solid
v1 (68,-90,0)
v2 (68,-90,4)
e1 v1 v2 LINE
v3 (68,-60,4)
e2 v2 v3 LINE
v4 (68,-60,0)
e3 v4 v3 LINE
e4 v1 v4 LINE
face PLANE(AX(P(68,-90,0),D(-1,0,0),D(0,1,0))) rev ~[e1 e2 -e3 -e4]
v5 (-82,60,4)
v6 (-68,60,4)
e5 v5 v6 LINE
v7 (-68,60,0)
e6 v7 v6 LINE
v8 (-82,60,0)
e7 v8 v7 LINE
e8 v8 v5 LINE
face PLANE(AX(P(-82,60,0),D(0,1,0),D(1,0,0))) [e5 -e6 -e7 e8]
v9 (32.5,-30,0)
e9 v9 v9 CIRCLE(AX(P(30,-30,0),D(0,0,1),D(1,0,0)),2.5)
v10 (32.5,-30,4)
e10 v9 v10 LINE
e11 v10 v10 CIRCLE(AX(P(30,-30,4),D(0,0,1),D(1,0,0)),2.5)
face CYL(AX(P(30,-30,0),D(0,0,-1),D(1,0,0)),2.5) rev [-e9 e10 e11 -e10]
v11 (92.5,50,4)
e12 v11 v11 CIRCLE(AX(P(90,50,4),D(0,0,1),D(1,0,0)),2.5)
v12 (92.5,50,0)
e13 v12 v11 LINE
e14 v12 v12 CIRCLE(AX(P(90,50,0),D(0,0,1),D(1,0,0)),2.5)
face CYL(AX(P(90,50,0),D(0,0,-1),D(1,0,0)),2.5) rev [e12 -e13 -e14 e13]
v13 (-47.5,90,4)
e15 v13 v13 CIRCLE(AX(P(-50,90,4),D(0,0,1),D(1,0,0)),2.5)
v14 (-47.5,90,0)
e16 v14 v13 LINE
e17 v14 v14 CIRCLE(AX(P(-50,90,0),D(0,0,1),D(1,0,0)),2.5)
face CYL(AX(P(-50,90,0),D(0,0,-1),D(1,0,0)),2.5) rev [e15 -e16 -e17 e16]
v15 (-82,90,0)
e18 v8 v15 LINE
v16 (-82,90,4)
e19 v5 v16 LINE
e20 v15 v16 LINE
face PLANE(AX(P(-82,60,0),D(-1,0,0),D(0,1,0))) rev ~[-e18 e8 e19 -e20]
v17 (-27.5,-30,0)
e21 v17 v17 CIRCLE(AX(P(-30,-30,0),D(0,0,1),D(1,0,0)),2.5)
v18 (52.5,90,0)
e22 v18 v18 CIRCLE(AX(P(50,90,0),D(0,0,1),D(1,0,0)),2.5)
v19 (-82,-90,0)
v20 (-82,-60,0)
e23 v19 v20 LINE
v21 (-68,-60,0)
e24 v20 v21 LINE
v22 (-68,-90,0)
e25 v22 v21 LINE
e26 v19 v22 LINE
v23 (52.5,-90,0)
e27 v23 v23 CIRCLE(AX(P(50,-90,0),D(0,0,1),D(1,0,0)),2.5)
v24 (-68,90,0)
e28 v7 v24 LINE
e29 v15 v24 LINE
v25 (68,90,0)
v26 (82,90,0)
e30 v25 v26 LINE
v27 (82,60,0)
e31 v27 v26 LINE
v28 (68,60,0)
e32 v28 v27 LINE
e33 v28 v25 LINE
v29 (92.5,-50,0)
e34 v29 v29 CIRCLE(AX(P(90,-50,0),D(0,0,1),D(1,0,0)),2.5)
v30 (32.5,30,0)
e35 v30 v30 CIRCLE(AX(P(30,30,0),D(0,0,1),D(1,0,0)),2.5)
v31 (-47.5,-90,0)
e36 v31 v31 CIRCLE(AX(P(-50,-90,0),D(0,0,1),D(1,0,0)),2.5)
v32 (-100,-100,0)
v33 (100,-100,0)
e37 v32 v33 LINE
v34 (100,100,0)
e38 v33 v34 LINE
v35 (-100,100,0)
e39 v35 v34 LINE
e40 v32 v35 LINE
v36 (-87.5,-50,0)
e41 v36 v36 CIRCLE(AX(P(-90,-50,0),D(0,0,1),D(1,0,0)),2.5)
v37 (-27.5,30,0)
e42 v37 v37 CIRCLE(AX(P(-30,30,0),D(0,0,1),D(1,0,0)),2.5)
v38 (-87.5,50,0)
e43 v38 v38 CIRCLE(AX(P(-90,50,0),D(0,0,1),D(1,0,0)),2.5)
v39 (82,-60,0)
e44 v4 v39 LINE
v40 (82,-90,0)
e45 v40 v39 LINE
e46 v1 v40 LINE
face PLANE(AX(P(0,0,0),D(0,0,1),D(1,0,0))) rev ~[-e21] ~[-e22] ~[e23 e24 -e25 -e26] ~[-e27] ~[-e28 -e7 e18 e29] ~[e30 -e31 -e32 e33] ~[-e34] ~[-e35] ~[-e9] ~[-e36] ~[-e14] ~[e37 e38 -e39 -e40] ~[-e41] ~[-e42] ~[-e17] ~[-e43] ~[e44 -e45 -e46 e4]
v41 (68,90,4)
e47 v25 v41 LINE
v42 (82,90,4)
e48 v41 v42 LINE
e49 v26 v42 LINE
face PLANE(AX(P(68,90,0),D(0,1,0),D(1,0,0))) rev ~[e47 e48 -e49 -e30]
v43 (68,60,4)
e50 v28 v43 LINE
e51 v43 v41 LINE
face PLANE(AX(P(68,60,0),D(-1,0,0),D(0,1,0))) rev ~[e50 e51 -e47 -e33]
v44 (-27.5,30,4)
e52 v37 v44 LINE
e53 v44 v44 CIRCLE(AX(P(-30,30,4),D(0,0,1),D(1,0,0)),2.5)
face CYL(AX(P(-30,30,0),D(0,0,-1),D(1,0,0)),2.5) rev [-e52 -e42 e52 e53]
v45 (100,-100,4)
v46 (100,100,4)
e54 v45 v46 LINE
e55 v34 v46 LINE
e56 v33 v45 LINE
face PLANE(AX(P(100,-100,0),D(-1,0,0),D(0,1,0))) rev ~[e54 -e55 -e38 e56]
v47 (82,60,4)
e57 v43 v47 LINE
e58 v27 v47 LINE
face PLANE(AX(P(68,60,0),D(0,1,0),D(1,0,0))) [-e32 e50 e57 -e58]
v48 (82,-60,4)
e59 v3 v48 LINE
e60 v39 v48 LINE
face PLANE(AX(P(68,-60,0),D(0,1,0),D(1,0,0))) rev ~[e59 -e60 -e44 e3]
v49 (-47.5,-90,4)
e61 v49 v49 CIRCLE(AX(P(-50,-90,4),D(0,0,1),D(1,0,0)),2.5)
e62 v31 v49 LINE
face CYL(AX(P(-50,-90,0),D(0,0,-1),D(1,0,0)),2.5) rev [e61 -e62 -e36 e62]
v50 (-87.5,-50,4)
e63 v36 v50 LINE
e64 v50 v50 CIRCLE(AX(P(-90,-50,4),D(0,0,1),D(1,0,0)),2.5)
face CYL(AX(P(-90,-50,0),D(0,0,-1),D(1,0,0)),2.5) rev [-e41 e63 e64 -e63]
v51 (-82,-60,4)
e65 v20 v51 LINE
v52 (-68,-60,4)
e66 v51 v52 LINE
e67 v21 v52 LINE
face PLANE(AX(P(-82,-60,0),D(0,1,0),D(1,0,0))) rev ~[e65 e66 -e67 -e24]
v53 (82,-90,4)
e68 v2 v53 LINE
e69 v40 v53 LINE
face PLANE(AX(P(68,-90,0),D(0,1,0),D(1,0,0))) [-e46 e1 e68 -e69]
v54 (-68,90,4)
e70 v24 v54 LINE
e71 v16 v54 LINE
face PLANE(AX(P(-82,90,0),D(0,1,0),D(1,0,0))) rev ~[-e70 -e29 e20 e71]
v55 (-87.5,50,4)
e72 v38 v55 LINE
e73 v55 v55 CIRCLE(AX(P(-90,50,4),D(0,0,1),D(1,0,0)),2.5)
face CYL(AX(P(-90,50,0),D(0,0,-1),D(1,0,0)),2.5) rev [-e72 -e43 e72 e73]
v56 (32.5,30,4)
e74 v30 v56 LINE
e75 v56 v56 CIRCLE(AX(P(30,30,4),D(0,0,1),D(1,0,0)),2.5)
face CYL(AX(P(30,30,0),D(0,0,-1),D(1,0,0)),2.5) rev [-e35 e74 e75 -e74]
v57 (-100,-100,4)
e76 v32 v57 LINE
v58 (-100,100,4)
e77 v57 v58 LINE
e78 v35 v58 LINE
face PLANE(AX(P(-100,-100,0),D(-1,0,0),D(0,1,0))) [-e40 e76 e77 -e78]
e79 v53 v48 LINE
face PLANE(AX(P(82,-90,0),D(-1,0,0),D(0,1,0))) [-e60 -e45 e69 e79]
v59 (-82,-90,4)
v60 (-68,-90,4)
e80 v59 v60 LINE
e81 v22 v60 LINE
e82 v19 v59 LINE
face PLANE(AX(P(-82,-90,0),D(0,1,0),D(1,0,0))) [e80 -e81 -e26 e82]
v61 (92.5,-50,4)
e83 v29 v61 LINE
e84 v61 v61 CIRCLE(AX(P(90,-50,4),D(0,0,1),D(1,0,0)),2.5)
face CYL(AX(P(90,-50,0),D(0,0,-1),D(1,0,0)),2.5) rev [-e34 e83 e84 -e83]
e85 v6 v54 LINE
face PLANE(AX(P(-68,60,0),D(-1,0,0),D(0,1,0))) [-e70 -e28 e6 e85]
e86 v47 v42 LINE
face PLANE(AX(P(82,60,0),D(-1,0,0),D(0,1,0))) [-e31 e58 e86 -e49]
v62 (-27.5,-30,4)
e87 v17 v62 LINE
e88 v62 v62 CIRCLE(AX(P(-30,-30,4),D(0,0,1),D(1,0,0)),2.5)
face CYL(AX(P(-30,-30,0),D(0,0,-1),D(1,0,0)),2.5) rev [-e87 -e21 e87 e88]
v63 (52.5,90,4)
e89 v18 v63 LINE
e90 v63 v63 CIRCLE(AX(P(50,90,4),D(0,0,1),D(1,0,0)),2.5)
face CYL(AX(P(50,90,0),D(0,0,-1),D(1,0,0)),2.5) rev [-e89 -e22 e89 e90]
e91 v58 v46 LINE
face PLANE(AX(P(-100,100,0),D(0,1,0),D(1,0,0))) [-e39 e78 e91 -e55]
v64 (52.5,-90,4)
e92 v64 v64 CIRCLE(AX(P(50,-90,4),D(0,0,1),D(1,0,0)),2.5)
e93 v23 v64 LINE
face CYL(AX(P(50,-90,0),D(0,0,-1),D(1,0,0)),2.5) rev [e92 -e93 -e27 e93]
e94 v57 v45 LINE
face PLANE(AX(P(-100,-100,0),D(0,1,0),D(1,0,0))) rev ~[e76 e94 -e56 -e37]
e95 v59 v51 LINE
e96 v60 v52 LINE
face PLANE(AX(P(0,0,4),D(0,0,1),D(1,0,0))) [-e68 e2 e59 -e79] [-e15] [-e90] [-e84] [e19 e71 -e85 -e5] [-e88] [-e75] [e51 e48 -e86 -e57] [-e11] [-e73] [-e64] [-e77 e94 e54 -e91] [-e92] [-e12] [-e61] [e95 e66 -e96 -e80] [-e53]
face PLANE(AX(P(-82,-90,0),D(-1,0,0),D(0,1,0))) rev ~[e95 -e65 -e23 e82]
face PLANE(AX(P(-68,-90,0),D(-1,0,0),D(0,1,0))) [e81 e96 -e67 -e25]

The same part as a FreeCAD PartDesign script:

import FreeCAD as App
import Part
import Sketcher

V = App.Vector


def add_polygon(sketch, points):
    """Adds a closed chain of lines whose ends are joined by coincident constraints."""
    first, n = sketch.GeometryCount, len(points)
    for a, b in zip(points, points[1:] + points[:1]):
        sketch.addGeometry(Part.LineSegment(App.Vector(*a, 0), App.Vector(*b, 0)), False)
    for i in range(n):
        sketch.addConstraint(Sketcher.Constraint("Coincident", first + i, 2, first + (i + 1) % n, 1))

doc = App.newDocument("Part")
body = doc.addObject("PartDesign::Body", "Body")

# Sketch on XY plane
sketch1 = doc.addObject("Sketcher::SketchObject", "Sketch")
body.addObject(sketch1)
sketch1.AttachmentSupport = (doc.XY_Plane, [""])
sketch1.MapMode = "FlatFace"
add_polygon(sketch1, [(-100, 100), (-100, -100), (100, -100), (100, 100)])  # lines 0-3
add_polygon(sketch1, [(-68, -90), (-82, -90), (-82, -60), (-68, -60)])  # lines 4-7
sketch1.addGeometry(Part.Circle(V(-50, -90, 0), V(0, 0, 1), 2.5), False)  # 8
sketch1.addGeometry(Part.Circle(V(-90, -50, 0), V(0, 0, 1), 2.5), False)  # 9
sketch1.addGeometry(Part.Circle(V(-30, -30, 0), V(0, 0, 1), 2.5), False)  # 10
sketch1.addGeometry(Part.Circle(V(50, -90, 0), V(0, 0, 1), 2.5), False)  # 11
add_polygon(sketch1, [(82, -90), (68, -90), (68, -60), (82, -60)])  # lines 12-15
sketch1.addGeometry(Part.Circle(V(90, -50, 0), V(0, 0, 1), 2.5), False)  # 16
sketch1.addGeometry(Part.Circle(V(30, -30, 0), V(0, 0, 1), 2.5), False)  # 17
sketch1.addGeometry(Part.Circle(V(-30, 30, 0), V(0, 0, 1), 2.5), False)  # 18
sketch1.addGeometry(Part.Circle(V(-90, 50, 0), V(0, 0, 1), 2.5), False)  # 19
add_polygon(sketch1, [(-68, 60), (-82, 60), (-82, 90), (-68, 90)])  # lines 20-23
sketch1.addGeometry(Part.Circle(V(-50, 90, 0), V(0, 0, 1), 2.5), False)  # 24
sketch1.addGeometry(Part.Circle(V(30, 30, 0), V(0, 0, 1), 2.5), False)  # 25
sketch1.addGeometry(Part.Circle(V(90, 50, 0), V(0, 0, 1), 2.5), False)  # 26
sketch1.addGeometry(Part.Circle(V(50, 90, 0), V(0, 0, 1), 2.5), False)  # 27
add_polygon(sketch1, [(82, 60), (68, 60), (68, 90), (82, 90)])  # lines 28-31
sketch1.addConstraint([
    Sketcher.Constraint("Vertical", 0),
    Sketcher.Constraint("Horizontal", 1),
    Sketcher.Constraint("Vertical", 2),
    Sketcher.Constraint("Horizontal", 3),
    Sketcher.Constraint("Horizontal", 4),
    Sketcher.Constraint("Vertical", 5),
    Sketcher.Constraint("Horizontal", 6),
    Sketcher.Constraint("Vertical", 7),
    Sketcher.Constraint("Horizontal", 12),
    Sketcher.Constraint("Vertical", 13),
    Sketcher.Constraint("Horizontal", 14),
    Sketcher.Constraint("Vertical", 15),
    Sketcher.Constraint("Horizontal", 20),
    Sketcher.Constraint("Vertical", 21),
    Sketcher.Constraint("Horizontal", 22),
    Sketcher.Constraint("Vertical", 23),
    Sketcher.Constraint("Horizontal", 28),
    Sketcher.Constraint("Vertical", 29),
    Sketcher.Constraint("Horizontal", 30),
    Sketcher.Constraint("Vertical", 31),
    Sketcher.Constraint("Equal", 8, 9),
    Sketcher.Constraint("Equal", 9, 10),
    Sketcher.Constraint("Equal", 10, 11),
    Sketcher.Constraint("Equal", 11, 16),
    Sketcher.Constraint("Equal", 16, 17),
    Sketcher.Constraint("Equal", 17, 18),
    Sketcher.Constraint("Equal", 18, 19),
    Sketcher.Constraint("Equal", 19, 24),
    Sketcher.Constraint("Equal", 24, 25),
    Sketcher.Constraint("Equal", 25, 26),
    Sketcher.Constraint("Equal", 26, 27),
    Sketcher.Constraint("Symmetric", 17, 3, 18, 3, -1, 1),
    Sketcher.Constraint("Symmetric", 16, 3, 19, 3, -1, 1),
    Sketcher.Constraint("Symmetric", 11, 3, 24, 3, -1, 1),
    Sketcher.Constraint("Symmetric", 10, 3, 25, 3, -1, 1),
    Sketcher.Constraint("Symmetric", 9, 3, 26, 3, -1, 1),
    Sketcher.Constraint("Symmetric", 8, 3, 27, 3, -1, 1),
    Sketcher.Constraint("Symmetric", 0, 2, 2, 2, -1, 1),
    Sketcher.Constraint("Symmetric", 14, 2, 20, 2, -1, 1),
    Sketcher.Constraint("Symmetric", 12, 2, 22, 2, -1, 1),
    Sketcher.Constraint("Symmetric", 6, 2, 28, 2, -1, 1),
    Sketcher.Constraint("Symmetric", 4, 2, 30, 2, -1, 1),
    Sketcher.Constraint("Symmetric", 8, 3, 11, 3, -2),
    Sketcher.Constraint("Symmetric", 9, 3, 16, 3, -2),
    Sketcher.Constraint("Symmetric", 10, 3, 17, 3, -2),
    Sketcher.Constraint("Symmetric", 7, 2, 12, 2, -2),
    Sketcher.Constraint("Symmetric", 5, 2, 14, 2, -2),
    Sketcher.Constraint("Horizontal", 11, 3, 4, 2),
    Sketcher.Constraint("Equal", 3, 0),
    Sketcher.Constraint("Diameter", 8, 5.0),
    Sketcher.Constraint("DistanceX", 1, 1, 1, 2, 200.0),
    Sketcher.Constraint("DistanceX", 4, 2, 4, 1, 14.0),
    Sketcher.Constraint("DistanceY", 5, 1, 5, 2, 30.0),
    Sketcher.Constraint("DistanceX", 8, 3, -1, 1, 50.0),
    Sketcher.Constraint("DistanceY", 8, 3, -1, 1, 90.0),
    Sketcher.Constraint("DistanceX", 9, 3, -1, 1, 90.0),
    Sketcher.Constraint("DistanceY", 9, 3, -1, 1, 50.0),
    Sketcher.Constraint("DistanceX", 10, 3, -1, 1, 30.0),
    Sketcher.Constraint("DistanceY", 10, 3, -1, 1, 30.0),
    Sketcher.Constraint("DistanceX", 4, 2, -1, 1, 82.0),
])
pad1 = doc.addObject("PartDesign::Pad", "Pad")
body.addObject(pad1)
pad1.Profile = sketch1
pad1.Length = 4

doc.recompute()
